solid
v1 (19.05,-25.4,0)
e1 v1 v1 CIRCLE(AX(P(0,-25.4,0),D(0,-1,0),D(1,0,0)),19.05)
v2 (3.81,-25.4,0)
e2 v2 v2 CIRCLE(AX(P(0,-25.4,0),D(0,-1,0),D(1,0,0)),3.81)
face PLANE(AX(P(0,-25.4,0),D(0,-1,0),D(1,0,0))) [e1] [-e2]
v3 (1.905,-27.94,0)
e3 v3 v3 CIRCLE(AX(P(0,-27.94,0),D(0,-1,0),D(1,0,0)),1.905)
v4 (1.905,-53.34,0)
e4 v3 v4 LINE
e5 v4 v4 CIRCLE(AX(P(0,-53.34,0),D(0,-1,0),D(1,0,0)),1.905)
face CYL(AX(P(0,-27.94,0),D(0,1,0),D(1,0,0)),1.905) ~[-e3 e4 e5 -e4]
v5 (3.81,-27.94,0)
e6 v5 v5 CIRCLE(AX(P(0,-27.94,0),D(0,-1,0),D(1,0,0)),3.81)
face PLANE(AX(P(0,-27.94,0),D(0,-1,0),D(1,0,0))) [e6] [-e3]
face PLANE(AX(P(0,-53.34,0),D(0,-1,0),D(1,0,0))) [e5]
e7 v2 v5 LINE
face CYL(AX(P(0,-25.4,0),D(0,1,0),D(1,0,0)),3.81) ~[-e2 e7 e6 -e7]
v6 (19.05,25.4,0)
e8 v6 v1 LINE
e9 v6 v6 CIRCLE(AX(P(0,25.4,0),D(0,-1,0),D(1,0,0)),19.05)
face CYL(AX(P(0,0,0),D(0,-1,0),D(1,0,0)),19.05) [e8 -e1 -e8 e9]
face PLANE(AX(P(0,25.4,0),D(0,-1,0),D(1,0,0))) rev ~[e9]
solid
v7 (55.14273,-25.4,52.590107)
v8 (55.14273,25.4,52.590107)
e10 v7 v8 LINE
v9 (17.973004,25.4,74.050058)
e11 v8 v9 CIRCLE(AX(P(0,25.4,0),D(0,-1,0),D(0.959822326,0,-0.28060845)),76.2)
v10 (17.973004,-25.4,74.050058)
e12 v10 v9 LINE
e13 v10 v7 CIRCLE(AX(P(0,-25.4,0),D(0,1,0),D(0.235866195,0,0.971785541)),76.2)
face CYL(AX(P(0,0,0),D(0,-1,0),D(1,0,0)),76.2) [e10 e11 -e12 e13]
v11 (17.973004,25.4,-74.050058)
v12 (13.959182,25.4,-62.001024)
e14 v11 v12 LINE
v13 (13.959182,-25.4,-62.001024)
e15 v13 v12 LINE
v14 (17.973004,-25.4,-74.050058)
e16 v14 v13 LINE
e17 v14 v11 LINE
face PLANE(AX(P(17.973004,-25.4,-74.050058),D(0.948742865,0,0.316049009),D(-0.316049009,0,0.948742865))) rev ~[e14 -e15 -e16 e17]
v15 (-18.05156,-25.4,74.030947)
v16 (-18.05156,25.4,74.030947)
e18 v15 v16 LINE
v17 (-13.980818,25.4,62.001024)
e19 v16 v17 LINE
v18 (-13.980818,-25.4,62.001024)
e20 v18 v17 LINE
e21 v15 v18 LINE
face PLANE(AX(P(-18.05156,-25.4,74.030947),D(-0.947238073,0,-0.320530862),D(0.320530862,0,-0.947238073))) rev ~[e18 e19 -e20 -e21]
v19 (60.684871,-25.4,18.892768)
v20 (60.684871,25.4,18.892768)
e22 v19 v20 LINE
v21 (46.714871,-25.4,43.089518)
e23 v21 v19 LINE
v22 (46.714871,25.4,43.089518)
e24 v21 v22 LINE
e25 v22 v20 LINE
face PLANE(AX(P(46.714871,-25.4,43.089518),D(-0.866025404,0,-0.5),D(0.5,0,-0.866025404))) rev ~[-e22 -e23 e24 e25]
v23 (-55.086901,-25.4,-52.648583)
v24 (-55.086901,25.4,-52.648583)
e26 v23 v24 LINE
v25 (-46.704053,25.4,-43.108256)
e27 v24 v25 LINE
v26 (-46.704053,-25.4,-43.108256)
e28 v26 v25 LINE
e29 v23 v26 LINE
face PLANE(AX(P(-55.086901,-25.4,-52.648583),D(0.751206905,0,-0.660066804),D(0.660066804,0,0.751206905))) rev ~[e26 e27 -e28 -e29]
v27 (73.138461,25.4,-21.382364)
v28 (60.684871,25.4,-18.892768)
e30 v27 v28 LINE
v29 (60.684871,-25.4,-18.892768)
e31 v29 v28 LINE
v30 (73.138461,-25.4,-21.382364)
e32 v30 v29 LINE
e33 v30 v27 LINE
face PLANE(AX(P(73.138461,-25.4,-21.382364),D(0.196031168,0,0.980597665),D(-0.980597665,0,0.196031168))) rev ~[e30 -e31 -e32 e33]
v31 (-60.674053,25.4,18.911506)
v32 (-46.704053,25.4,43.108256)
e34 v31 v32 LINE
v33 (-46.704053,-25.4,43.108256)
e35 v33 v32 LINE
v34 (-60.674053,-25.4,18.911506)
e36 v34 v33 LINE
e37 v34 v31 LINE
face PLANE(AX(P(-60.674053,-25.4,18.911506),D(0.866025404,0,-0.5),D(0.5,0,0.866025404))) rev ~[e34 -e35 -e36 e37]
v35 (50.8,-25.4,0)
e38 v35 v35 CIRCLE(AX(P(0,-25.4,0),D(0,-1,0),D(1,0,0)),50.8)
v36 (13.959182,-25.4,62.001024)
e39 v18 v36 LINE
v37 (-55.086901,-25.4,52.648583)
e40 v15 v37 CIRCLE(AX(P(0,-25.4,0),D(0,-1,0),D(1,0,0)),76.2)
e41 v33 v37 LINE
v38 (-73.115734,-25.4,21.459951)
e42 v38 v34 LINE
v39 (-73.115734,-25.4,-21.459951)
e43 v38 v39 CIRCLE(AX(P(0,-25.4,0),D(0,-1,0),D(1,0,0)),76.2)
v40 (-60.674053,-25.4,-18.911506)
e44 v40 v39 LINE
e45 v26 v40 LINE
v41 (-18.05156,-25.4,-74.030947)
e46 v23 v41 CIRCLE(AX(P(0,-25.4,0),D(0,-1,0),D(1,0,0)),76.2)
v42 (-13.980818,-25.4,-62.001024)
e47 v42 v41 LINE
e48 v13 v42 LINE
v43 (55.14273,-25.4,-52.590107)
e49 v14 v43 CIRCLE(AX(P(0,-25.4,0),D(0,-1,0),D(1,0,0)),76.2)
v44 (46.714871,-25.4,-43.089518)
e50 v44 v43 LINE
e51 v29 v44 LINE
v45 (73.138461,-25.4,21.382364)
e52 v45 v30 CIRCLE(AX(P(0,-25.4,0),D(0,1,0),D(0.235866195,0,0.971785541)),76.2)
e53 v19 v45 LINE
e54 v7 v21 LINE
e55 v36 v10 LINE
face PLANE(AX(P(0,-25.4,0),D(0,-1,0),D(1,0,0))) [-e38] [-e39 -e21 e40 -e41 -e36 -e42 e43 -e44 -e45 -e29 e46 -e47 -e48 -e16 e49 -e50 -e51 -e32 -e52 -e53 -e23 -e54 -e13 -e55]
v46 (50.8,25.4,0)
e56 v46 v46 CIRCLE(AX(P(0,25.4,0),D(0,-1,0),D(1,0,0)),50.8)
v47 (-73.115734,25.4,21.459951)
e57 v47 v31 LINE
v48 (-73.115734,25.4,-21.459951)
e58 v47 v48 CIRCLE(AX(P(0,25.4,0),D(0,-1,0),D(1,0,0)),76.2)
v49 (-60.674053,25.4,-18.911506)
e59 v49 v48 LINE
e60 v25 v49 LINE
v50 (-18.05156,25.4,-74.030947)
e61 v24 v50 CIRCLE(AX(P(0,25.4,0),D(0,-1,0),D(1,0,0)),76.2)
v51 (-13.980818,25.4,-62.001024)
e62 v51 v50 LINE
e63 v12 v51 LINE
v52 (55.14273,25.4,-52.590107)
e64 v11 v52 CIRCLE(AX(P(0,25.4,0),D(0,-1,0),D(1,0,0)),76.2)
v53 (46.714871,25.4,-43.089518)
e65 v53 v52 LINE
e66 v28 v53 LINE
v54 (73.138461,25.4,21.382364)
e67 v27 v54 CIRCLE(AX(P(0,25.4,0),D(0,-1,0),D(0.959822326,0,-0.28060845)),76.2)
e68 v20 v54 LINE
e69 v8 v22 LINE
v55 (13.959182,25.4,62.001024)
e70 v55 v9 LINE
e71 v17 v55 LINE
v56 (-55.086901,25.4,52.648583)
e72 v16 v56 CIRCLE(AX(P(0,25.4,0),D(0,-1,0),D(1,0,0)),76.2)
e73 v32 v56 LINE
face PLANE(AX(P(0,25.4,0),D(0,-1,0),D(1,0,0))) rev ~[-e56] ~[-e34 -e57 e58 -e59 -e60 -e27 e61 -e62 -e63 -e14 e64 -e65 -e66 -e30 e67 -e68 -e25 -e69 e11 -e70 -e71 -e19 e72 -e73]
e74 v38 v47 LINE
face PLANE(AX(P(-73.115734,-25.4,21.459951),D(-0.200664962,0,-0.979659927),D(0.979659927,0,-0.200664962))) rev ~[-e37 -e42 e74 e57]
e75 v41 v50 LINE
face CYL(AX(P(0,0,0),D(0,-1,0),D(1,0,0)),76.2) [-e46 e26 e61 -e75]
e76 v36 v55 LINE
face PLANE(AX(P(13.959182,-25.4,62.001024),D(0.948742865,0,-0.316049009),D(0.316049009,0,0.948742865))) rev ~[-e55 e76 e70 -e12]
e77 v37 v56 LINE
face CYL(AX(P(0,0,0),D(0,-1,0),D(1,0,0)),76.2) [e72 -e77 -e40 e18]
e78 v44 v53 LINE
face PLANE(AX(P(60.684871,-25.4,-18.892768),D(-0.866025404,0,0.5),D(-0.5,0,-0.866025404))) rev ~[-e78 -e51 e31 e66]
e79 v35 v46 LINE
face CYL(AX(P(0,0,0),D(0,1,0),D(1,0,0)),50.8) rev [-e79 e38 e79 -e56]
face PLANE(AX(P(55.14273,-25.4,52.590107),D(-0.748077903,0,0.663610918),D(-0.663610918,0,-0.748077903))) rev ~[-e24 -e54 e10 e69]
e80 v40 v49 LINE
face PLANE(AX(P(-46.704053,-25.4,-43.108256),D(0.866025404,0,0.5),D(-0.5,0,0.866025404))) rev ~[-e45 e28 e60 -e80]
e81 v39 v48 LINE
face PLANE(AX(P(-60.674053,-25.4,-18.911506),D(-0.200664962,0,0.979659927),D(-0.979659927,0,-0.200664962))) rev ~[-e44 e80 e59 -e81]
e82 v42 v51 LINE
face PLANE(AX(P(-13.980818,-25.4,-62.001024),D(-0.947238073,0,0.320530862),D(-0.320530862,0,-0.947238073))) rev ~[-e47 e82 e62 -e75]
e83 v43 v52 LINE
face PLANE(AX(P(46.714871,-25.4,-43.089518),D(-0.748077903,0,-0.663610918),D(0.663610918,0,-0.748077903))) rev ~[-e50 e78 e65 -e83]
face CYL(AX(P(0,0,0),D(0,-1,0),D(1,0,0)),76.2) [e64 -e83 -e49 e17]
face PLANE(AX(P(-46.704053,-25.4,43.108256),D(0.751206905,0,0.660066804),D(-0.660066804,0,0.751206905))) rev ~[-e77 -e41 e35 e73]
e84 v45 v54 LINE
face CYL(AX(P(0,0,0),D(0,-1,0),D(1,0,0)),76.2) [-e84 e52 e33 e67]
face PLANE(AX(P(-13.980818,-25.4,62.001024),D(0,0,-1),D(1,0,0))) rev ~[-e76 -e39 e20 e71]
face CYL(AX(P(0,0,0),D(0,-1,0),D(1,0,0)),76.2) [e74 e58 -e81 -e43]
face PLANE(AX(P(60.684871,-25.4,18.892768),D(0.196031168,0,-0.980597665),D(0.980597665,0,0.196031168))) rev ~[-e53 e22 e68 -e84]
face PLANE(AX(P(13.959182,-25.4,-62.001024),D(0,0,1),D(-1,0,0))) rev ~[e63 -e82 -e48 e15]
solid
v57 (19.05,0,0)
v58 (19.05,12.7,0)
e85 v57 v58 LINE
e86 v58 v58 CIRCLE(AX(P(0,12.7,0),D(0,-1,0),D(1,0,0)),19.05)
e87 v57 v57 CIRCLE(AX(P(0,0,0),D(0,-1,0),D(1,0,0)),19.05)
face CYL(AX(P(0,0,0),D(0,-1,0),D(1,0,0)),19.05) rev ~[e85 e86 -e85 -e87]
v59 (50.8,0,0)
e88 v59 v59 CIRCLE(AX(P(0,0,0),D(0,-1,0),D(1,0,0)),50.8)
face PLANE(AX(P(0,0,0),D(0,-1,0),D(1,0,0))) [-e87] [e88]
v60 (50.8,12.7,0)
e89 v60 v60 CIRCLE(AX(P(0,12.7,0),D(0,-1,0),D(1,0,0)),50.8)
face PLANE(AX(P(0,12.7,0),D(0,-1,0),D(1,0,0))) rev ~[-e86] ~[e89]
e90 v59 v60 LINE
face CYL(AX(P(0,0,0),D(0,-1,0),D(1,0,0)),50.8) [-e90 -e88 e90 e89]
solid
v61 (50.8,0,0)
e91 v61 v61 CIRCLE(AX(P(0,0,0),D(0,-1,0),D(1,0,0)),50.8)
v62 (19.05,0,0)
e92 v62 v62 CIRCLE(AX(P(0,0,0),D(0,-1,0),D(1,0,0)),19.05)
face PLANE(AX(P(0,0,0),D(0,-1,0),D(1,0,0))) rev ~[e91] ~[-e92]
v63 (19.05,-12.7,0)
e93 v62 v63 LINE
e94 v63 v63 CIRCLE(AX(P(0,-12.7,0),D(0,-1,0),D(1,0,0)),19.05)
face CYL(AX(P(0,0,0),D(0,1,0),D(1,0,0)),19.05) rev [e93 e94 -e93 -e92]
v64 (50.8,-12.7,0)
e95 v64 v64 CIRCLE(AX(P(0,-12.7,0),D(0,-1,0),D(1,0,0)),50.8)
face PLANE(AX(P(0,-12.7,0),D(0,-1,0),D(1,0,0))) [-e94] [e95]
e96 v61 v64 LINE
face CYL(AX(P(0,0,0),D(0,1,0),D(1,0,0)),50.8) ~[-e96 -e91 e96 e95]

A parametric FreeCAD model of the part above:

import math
import FreeCAD as App
import Part
import Sketcher
Q = App.Units.Quantity

doc = App.newDocument("Part")
body = doc.addObject("PartDesign::Body", "Body")

# Sketch on XZ plane
sketch1 = body.newObject("Sketcher::SketchObject", "Sketch")
sketch1.AttachmentSupport = (doc.getObject("XZ_Plane"), [""])
sketch1.MapMode = "FlatFace"
sketch1.addGeometry(Part.Circle(App.Vector(0, 0, 0), App.Vector(0, 0, 1), 76), False)
sketch1.addGeometry(Part.Circle(App.Vector(0, 0, 0), App.Vector(0, 0, 1), 51), False)
sketch1.addConstraint(Sketcher.Constraint("Coincident", 0, 3, -1, 1))
sketch1.addConstraint(Sketcher.Constraint("Coincident", 1, 3, -1, 1))
sketch1.addConstraint(Sketcher.Constraint("Diameter", 0, Q("6 in")))
sketch1.addConstraint(Sketcher.Constraint("Diameter", 1, Q("4 in")))
pad1 = body.newObject("PartDesign::Pad", "Pad")
pad1.Profile = sketch1
pad1.Length = Q("1 in")

# Sketch on XZ plane
sketch2 = body.newObject("Sketcher::SketchObject", "Sketch001")
sketch2.AttachmentSupport = (doc.getObject("XZ_Plane"), [""])
sketch2.MapMode = "FlatFace"
sketch2.addGeometry(Part.Circle(App.Vector(0, 0, 0), App.Vector(0, 0, 1), 76), False)
sketch2.addGeometry(Part.Circle(App.Vector(0, 0, 0), App.Vector(0, 0, 1), 51), False)
sketch2.addConstraint(Sketcher.Constraint("Coincident", 0, 3, -1, 1))
sketch2.addConstraint(Sketcher.Constraint("Coincident", 1, 3, -1, 1))
sketch2.addConstraint(Sketcher.Constraint("Diameter", 0, Q("6 in")))
sketch2.addConstraint(Sketcher.Constraint("Diameter", 1, Q("4 in")))
pad2 = body.newObject("PartDesign::Pad", "Pad001")
pad2.Profile = sketch2
pad2.Length = Q("1 in")
pad2.Reversed = True

# Sketch on XZ plane
sketch3 = body.newObject("Sketcher::SketchObject", "Sketch002")
sketch3.AttachmentSupport = (doc.getObject("XZ_Plane"), [""])
sketch3.MapMode = "FlatFace"
sketch3.AttachmentOffset = App.Placement(App.Vector(0, 0, 1 * 25.4), App.Rotation())
sketch3.addGeometry(Part.ArcOfCircle(Part.Circle(App.Vector(0, 0, 0), App.Vector(0, 0, 1), 76), math.radians(76), math.radians(104)), False)
sketch3.addGeometry(Part.LineSegment(App.Vector(-18, 74, 0), App.Vector(-14, 62, 0)), False)
sketch3.addGeometry(Part.LineSegment(App.Vector(-14, 62, 0), App.Vector(14, 62, 0)), False)
sketch3.addGeometry(Part.LineSegment(App.Vector(14, 62, 0), App.Vector(18, 74, 0)), False)
sketch3.addGeometry(Part.LineSegment(App.Vector(-61, -19, 0), App.Vector(-73, -21, 0)), False)
sketch3.addGeometry(Part.ArcOfCircle(Part.Circle(App.Vector(0, 0, 0), App.Vector(0, 0, 1), 76), math.radians(-164), math.radians(-136)), False)
sketch3.addGeometry(Part.LineSegment(App.Vector(-55, -53, 0), App.Vector(-47, -43, 0)), False)
sketch3.addGeometry(Part.LineSegment(App.Vector(-47, -43, 0), App.Vector(-61, -19, 0)), False)
sketch3.addGeometry(Part.ArcOfCircle(Part.Circle(App.Vector(0, 0, 0), App.Vector(0, 0, 1), 76), math.radians(-44), math.radians(-16)), False)
sketch3.addGeometry(Part.LineSegment(App.Vector(73, -21, 0), App.Vector(61, -19, 0)), False)
sketch3.addGeometry(Part.LineSegment(App.Vector(61, -19, 0), App.Vector(47, -43, 0)), False)
sketch3.addGeometry(Part.LineSegment(App.Vector(47, -43, 0), App.Vector(55, -53, 0)), False)
sketch3.addConstraint(Sketcher.Constraint("Coincident", 0, 2, 1, 1))
sketch3.addConstraint(Sketcher.Constraint("Coincident", 1, 2, 2, 1))
sketch3.addConstraint(Sketcher.Constraint("Coincident", 2, 2, 3, 1))
sketch3.addConstraint(Sketcher.Constraint("Coincident", 3, 2, 0, 1))
sketch3.addConstraint(Sketcher.Constraint("Coincident", 4, 2, 5, 1))
sketch3.addConstraint(Sketcher.Constraint("Coincident", 5, 2, 6, 1))
sketch3.addConstraint(Sketcher.Constraint("Coincident", 6, 2, 7, 1))
sketch3.addConstraint(Sketcher.Constraint("Coincident", 7, 2, 4, 1))
sketch3.addConstraint(Sketcher.Constraint("Coincident", 8, 2, 9, 1))
sketch3.addConstraint(Sketcher.Constraint("Coincident", 9, 2, 10, 1))
sketch3.addConstraint(Sketcher.Constraint("Coincident", 10, 2, 11, 1))
sketch3.addConstraint(Sketcher.Constraint("Coincident", 11, 2, 8, 1))
sketch3.addConstraint(Sketcher.Constraint("Horizontal", 2))
sketch3.addConstraint(Sketcher.Constraint("Coincident", 0, 3, -1, 1))
sketch3.addConstraint(Sketcher.Constraint("Coincident", 5, 3, -1, 1))
sketch3.addConstraint(Sketcher.Constraint("Coincident", 8, 3, -1, 1))
sketch3.addConstraint(Sketcher.Constraint("Equal", 0, 5))
sketch3.addConstraint(Sketcher.Constraint("Equal", 5, 8))
sketch3.addConstraint(Sketcher.Constraint("Equal", 1, 3))
sketch3.addConstraint(Sketcher.Constraint("Equal", 3, 4))
sketch3.addConstraint(Sketcher.Constraint("Equal", 4, 6))
sketch3.addConstraint(Sketcher.Constraint("Equal", 6, 9))
sketch3.addConstraint(Sketcher.Constraint("Equal", 7, 10))
sketch3.addConstraint(Sketcher.Constraint("Equal", 9, 11))
sketch3.addConstraint(Sketcher.Constraint("Radius", 0, Q("3 in")))
sketch3.addConstraint(Sketcher.Constraint("DistanceX", 2, 1, 2, 2, Q("1.1 in")))
sketch3.addConstraint(Sketcher.Constraint("Angle", 7, Q("120 deg")))
sketch3.addConstraint(Sketcher.Constraint("Angle", 10, Q("-120 deg")))
sketch3.addConstraint(Sketcher.Constraint("Distance", 1, Q("0.5 in")))
sketch3.addConstraint(Sketcher.Constraint("Distance", 7, Q("1.1 in")))
sketch3.addConstraint(Sketcher.Constraint("DistanceX", 5, 2, -1, 1, 55.086901))
sketch3.addConstraint(Sketcher.Constraint("DistanceY", 4, 2, 0, 2, 95.490898))
sketch3.addConstraint(Sketcher.Constraint("DistanceX", 0, 2, -1, 1, 18.05156))
sketch3.addConstraint(Sketcher.Constraint("DistanceX", 1, 2, -1, 1, 13.980818))
sketch3.addConstraint(Sketcher.Constraint("DistanceX", -1, 1, 8, 2, 73.138461))
sketch3.addConstraint(Sketcher.Constraint("DistanceX", -1, 1, 9, 2, 60.684871))
pocket1 = body.newObject("PartDesign::Pocket", "Pocket")
pocket1.Profile = sketch3
pocket1.Type = "ThroughAll"

# Sketch on XZ plane
sketch4 = body.newObject("Sketcher::SketchObject", "Sketch003")
sketch4.AttachmentSupport = (doc.getObject("XZ_Plane"), [""])
sketch4.MapMode = "FlatFace"
sketch4.AttachmentOffset = App.Placement(App.Vector(0, 0, 1 * 25.4), App.Rotation())
sketch4.addGeometry(Part.ArcOfCircle(Part.Circle(App.Vector(0, 0, 0), App.Vector(0, 0, 1), 76), math.radians(136), math.radians(164)), False)
sketch4.addGeometry(Part.LineSegment(App.Vector(-73, 21, 0), App.Vector(-61, 19, 0)), False)
sketch4.addGeometry(Part.LineSegment(App.Vector(-61, 19, 0), App.Vector(-47, 43, 0)), False)
sketch4.addGeometry(Part.LineSegment(App.Vector(-47, 43, 0), App.Vector(-55, 53, 0)), False)
sketch4.addGeometry(Part.LineSegment(App.Vector(61, 19, 0), App.Vector(73, 21, 0)), False)
sketch4.addGeometry(Part.ArcOfCircle(Part.Circle(App.Vector(0, 0, 0), App.Vector(0, 0, 1), 76), math.radians(16), math.radians(44)), False)
sketch4.addGeometry(Part.LineSegment(App.Vector(55, 53, 0), App.Vector(47, 43, 0)), False)
sketch4.addGeometry(Part.LineSegment(App.Vector(47, 43, 0), App.Vector(61, 19, 0)), False)
sketch4.addGeometry(Part.LineSegment(App.Vector(-14, -62, 0), App.Vector(-18, -74, 0)), False)
sketch4.addGeometry(Part.ArcOfCircle(Part.Circle(App.Vector(0, 0, 0), App.Vector(0, 0, 1), 76), math.radians(-104), math.radians(-76)), False)
sketch4.addGeometry(Part.LineSegment(App.Vector(18, -74, 0), App.Vector(14, -62, 0)), False)
sketch4.addGeometry(Part.LineSegment(App.Vector(14, -62, 0), App.Vector(-14, -62, 0)), False)
sketch4.addConstraint(Sketcher.Constraint("Coincident", 0, 2, 1, 1))
sketch4.addConstraint(Sketcher.Constraint("Coincident", 1, 2, 2, 1))
sketch4.addConstraint(Sketcher.Constraint("Coincident", 2, 2, 3, 1))
sketch4.addConstraint(Sketcher.Constraint("Coincident", 3, 2, 0, 1))
sketch4.addConstraint(Sketcher.Constraint("Coincident", 4, 2, 5, 1))
sketch4.addConstraint(Sketcher.Constraint("Coincident", 5, 2, 6, 1))
sketch4.addConstraint(Sketcher.Constraint("Coincident", 6, 2, 7, 1))
sketch4.addConstraint(Sketcher.Constraint("Coincident", 7, 2, 4, 1))
sketch4.addConstraint(Sketcher.Constraint("Coincident", 8, 2, 9, 1))
sketch4.addConstraint(Sketcher.Constraint("Coincident", 9, 2, 10, 1))
sketch4.addConstraint(Sketcher.Constraint("Coincident", 10, 2, 11, 1))
sketch4.addConstraint(Sketcher.Constraint("Coincident", 11, 2, 8, 1))
sketch4.addConstraint(Sketcher.Constraint("Horizontal", 11))
sketch4.addConstraint(Sketcher.Constraint("Coincident", 0, 3, -1, 1))
sketch4.addConstraint(Sketcher.Constraint("Coincident", 5, 3, -1, 1))
sketch4.addConstraint(Sketcher.Constraint("Coincident", 9, 3, -1, 1))
sketch4.addConstraint(Sketcher.Constraint("Equal", 0, 5))
sketch4.addConstraint(Sketcher.Constraint("Equal", 5, 9))
sketch4.addConstraint(Sketcher.Constraint("Equal", 1, 3))
sketch4.addConstraint(Sketcher.Constraint("Equal", 3, 4))
sketch4.addConstraint(Sketcher.Constraint("Equal", 4, 6))
sketch4.addConstraint(Sketcher.Constraint("Equal", 2, 7))
sketch4.addConstraint(Sketcher.Constraint("Equal", 6, 8))
sketch4.addConstraint(Sketcher.Constraint("Equal", 8, 10))
sketch4.addConstraint(Sketcher.Constraint("Radius", 0, Q("3 in")))
sketch4.addConstraint(Sketcher.Constraint("DistanceX", 11, 2, 11, 1, Q("1.1 in")))
sketch4.addConstraint(Sketcher.Constraint("Angle", 2, Q("60 deg")))
sketch4.addConstraint(Sketcher.Constraint("Angle", 7, Q("-60 deg")))
sketch4.addConstraint(Sketcher.Constraint("Distance", 1, Q("0.5 in")))
sketch4.addConstraint(Sketcher.Constraint("Distance", 2, Q("1.1 in")))
sketch4.addConstraint(Sketcher.Constraint("DistanceX", 3, 2, -1, 1, 55.086901))
sketch4.addConstraint(Sketcher.Constraint("DistanceY", 8, 2, 0, 2, 95.490898))
sketch4.addConstraint(Sketcher.Constraint("DistanceY", -1, 1, 0, 2, 21.459951))
sketch4.addConstraint(Sketcher.Constraint("DistanceX", -1, 1, 4, 2, 73.138461))
sketch4.addConstraint(Sketcher.Constraint("DistanceX", -1, 1, 5, 2, 55.14273))
sketch4.addConstraint(Sketcher.Constraint("DistanceY", 9, 2, -1, 1, 74.050058))
pocket2 = body.newObject("PartDesign::Pocket", "Pocket001")
pocket2.Profile = sketch4
pocket2.Type = "ThroughAll"
body2 = doc.addObject("PartDesign::Body", "Body001")

# Sketch on XZ plane
sketch5 = body2.newObject("Sketcher::SketchObject", "Sketch004")
sketch5.AttachmentSupport = (doc.getObject("XZ_Plane001"), [""])
sketch5.MapMode = "FlatFace"
sketch5.addGeometry(Part.Circle(App.Vector(0, 0, 0), App.Vector(0, 0, 1), 19), False)
sketch5.addConstraint(Sketcher.Constraint("Coincident", 0, 3, -1, 1))
sketch5.addConstraint(Sketcher.Constraint("Diameter", 0, Q("1.5 in")))
pad3 = body2.newObject("PartDesign::Pad", "Pad002")
pad3.Profile = sketch5
pad3.Length = Q("1 in")

# Sketch on XZ plane
sketch6 = body2.newObject("Sketcher::SketchObject", "Sketch005")
sketch6.AttachmentSupport = (doc.getObject("XZ_Plane001"), [""])
sketch6.MapMode = "FlatFace"
sketch6.addGeometry(Part.Circle(App.Vector(0, 0, 0), App.Vector(0, 0, 1), 19), False)
sketch6.addConstraint(Sketcher.Constraint("Coincident", 0, 3, -1, 1))
sketch6.addConstraint(Sketcher.Constraint("Diameter", 0, Q("1.5 in")))
pad4 = body2.newObject("PartDesign::Pad", "Pad003")
pad4.Profile = sketch6
pad4.Length = Q("1 in")
pad4.Reversed = True

# Sketch on XZ plane
sketch7 = body2.newObject("Sketcher::SketchObject", "Sketch006")
sketch7.AttachmentSupport = (doc.getObject("XZ_Plane001"), [""])
sketch7.MapMode = "FlatFace"
sketch7.AttachmentOffset = App.Placement(App.Vector(0, 0, 1 * 25.4), App.Rotation())
sketch7.addGeometry(Part.Circle(App.Vector(0, 0, 0), App.Vector(0, 0, 1), 3.8), False)
sketch7.addConstraint(Sketcher.Constraint("Coincident", 0, 3, -1, 1))
sketch7.addConstraint(Sketcher.Constraint("Diameter", 0, Q("0.3 in")))
pad5 = body2.newObject("PartDesign::Pad", "Pad004")
pad5.Profile = sketch7
pad5.Length = Q("0.1 in")

# Sketch on XZ plane
sketch8 = body2.newObject("Sketcher::SketchObject", "Sketch007")
sketch8.AttachmentSupport = (doc.getObject("XZ_Plane001"), [""])
sketch8.MapMode = "FlatFace"
sketch8.AttachmentOffset = App.Placement(App.Vector(0, 0, 1.1 * 25.4), App.Rotation())
sketch8.addGeometry(Part.Circle(App.Vector(0, 0, 0), App.Vector(0, 0, 1), 1.9), False)
sketch8.addConstraint(Sketcher.Constraint("Coincident", 0, 3, -1, 1))
sketch8.addConstraint(Sketcher.Constraint("Diameter", 0, Q("0.15 in")))
pad6 = body2.newObject("PartDesign::Pad", "Pad005")
pad6.Profile = sketch8
pad6.Length = Q("1 in")
body3 = doc.addObject("PartDesign::Body", "Body002")

# Sketch on XZ plane
sketch9 = body3.newObject("Sketcher::SketchObject", "Sketch008")
sketch9.AttachmentSupport = (doc.getObject("XZ_Plane002"), [""])
sketch9.MapMode = "FlatFace"
sketch9.addGeometry(Part.Circle(App.Vector(0, 0, 0), App.Vector(0, 0, 1), 51), False)
sketch9.addGeometry(Part.Circle(App.Vector(0, 0, 0), App.Vector(0, 0, 1), 19), False)
sketch9.addConstraint(Sketcher.Constraint("Coincident", 0, 3, -1, 1))
sketch9.addConstraint(Sketcher.Constraint("Coincident", 1, 3, -1, 1))
sketch9.addConstraint(Sketcher.Constraint("Diameter", 0, Q("4 in")))
sketch9.addConstraint(Sketcher.Constraint("Diameter", 1, Q("1.5 in")))
pad7 = body3.newObject("PartDesign::Pad", "Pad006")
pad7.Profile = sketch9
pad7.Length = Q("0.5 in")
body4 = doc.addObject("PartDesign::Body", "Body003")

# Sketch on XZ plane
sketch10 = body4.newObject("Sketcher::SketchObject", "Sketch009")
sketch10.AttachmentSupport = (doc.getObject("XZ_Plane003"), [""])
sketch10.MapMode = "FlatFace"
sketch10.addGeometry(Part.Circle(App.Vector(0, 0, 0), App.Vector(0, 0, 1), 51), False)
sketch10.addGeometry(Part.Circle(App.Vector(0, 0, 0), App.Vector(0, 0, 1), 19), False)
sketch10.addConstraint(Sketcher.Constraint("Coincident", 0, 3, -1, 1))
sketch10.addConstraint(Sketcher.Constraint("Coincident", 1, 3, -1, 1))
sketch10.addConstraint(Sketcher.Constraint("Diameter", 0, Q("4 in")))
sketch10.addConstraint(Sketcher.Constraint("Diameter", 1, Q("1.5 in")))
pad8 = body4.newObject("PartDesign::Pad", "Pad007")
pad8.Profile = sketch10
pad8.Length = Q("0.5 in")
pad8.Reversed = True

doc.recompute()
